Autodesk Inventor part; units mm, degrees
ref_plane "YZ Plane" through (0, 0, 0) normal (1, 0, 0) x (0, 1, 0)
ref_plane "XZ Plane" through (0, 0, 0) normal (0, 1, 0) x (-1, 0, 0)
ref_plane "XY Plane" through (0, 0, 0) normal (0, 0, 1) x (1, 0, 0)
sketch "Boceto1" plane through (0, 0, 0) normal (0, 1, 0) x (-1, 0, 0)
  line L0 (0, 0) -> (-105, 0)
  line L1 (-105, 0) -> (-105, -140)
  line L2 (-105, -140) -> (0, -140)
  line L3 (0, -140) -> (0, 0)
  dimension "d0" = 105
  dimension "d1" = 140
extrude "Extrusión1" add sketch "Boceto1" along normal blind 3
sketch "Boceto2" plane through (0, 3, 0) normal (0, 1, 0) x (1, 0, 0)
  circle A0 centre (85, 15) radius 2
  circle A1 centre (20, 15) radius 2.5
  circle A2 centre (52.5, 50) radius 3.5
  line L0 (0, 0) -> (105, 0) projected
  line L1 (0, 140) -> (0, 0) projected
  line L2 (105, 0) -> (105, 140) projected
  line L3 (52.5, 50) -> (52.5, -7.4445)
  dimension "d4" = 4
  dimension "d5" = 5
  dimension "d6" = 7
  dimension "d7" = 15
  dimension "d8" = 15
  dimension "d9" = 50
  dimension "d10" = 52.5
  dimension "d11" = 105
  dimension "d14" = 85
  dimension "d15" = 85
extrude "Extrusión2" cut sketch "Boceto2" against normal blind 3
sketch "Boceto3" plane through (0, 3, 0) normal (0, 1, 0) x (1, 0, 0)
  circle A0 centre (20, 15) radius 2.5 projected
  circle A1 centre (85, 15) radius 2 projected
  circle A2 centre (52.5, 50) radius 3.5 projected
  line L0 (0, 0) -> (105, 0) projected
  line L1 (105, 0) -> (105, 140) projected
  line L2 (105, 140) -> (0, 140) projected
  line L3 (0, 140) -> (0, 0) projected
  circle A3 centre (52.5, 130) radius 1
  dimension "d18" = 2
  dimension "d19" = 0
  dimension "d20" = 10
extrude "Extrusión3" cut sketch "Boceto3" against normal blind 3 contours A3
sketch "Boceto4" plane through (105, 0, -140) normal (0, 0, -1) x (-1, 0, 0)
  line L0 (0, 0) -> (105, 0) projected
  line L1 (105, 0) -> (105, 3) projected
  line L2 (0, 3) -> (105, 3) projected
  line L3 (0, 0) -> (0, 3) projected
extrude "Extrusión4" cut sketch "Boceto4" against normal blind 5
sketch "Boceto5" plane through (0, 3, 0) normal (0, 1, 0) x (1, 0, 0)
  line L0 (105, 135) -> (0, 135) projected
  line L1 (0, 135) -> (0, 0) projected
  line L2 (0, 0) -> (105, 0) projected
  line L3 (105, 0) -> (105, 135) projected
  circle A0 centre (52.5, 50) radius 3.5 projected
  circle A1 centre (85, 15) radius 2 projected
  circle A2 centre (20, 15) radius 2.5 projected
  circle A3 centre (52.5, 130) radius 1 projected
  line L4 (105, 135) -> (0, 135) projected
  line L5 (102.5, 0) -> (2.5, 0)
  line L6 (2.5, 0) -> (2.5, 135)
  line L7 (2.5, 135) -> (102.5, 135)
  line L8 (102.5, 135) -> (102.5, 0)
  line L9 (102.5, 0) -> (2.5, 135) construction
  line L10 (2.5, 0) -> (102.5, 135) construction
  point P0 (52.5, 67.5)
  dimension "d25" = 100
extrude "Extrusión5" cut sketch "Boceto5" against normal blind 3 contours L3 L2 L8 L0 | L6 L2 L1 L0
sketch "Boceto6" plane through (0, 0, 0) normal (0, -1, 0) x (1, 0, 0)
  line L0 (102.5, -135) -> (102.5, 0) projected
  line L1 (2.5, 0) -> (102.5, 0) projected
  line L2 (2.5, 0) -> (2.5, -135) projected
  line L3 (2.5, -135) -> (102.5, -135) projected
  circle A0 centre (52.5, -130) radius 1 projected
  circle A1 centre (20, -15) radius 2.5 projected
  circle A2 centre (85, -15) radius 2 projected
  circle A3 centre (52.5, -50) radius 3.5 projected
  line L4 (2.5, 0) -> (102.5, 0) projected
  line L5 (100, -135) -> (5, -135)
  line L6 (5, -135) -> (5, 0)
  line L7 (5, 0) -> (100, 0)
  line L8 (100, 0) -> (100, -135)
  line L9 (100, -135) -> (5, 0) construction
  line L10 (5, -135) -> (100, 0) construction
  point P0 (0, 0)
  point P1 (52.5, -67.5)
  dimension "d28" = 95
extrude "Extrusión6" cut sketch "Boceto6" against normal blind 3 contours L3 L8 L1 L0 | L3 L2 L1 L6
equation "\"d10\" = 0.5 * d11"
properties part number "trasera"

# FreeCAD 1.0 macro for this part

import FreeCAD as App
import Part
import Sketcher

V = App.Vector
Q = App.Units.Quantity


def add_polygon(sketch, points):
    """Adds a closed chain of lines whose ends are joined by coincident constraints."""
    first, n = sketch.GeometryCount, len(points)
    for a, b in zip(points, points[1:] + points[:1]):
        sketch.addGeometry(Part.LineSegment(App.Vector(*a, 0), App.Vector(*b, 0)), False)
    for i in range(n):
        sketch.addConstraint(Sketcher.Constraint("Coincident", first + i, 2, first + (i + 1) % n, 1))

doc = App.newDocument("Part")
params = doc.addObject("Spreadsheet::Sheet", "Params")
for row, (alias, value) in enumerate([
    ("sketch1_width", "105 mm"),
    ("sketch1_height", "140 mm"),
    ("pad1_length", "3 mm"),
    ("sketch2_diameter", "4 mm"),
    ("sketch2_diameter2", "5 mm"),
    ("sketch2_diameter3", "7 mm"),
    ("pocket1_length", "3 mm"),
    ("sketch3_diameter", "2 mm"),
    ("pocket2_length", "3 mm"),
    ("sketch4_width", "105 mm"),
    ("sketch4_height", "3 mm"),
    ("pocket3_length", "5 mm"),
    ("sketch5_height", "135 mm"),
    ("sketch5_width", "2.5 mm"),
    ("pocket4_length", "3 mm"),
    ("sketch6_height", "135 mm"),
    ("sketch6_width", "2.5 mm"),
    ("pocket5_length", "3 mm"),
], start=1):
    params.set(f"A{row}", alias)
    params.set(f"B{row}", "=" + value)
    params.setAlias(f"B{row}", alias)

body = doc.addObject("PartDesign::Body", "Body")

# Sketch on XZ plane
sketch1 = body.newObject("Sketcher::SketchObject", "Sketch")
sketch1.AttachmentSupport = (doc.getObject("XZ_Plane"), [""])
sketch1.MapMode = "FlatFace"
add_polygon(sketch1, [(0, -140), (0, 0), (105, 0), (105, -140)])  # lines 0-3
sketch1.addConstraint([
    Sketcher.Constraint("Vertical", 0),
    Sketcher.Constraint("Horizontal", 1),
    Sketcher.Constraint("Vertical", 2),
    Sketcher.Constraint("Horizontal", 3),
    Sketcher.Constraint("Coincident", 0, 2, -1, 1),
    Sketcher.Constraint("DistanceX", 1, 1, 1, 2, Q("105 mm")),
    Sketcher.Constraint("DistanceY", 0, 1, 0, 2, Q("140 mm")),
])
sketch1.setExpression("Constraints[9]", "Params.sketch1_width")
sketch1.setExpression("Constraints[10]", "Params.sketch1_height")
pad1 = body.newObject("PartDesign::Pad", "Pad")
pad1.Profile = sketch1
pad1.setExpression("Length", "Params.pad1_length")
pad1.Reversed = True

# Sketch on XZ plane
sketch2 = body.newObject("Sketcher::SketchObject", "Sketch001")
sketch2.AttachmentSupport = (doc.getObject("XZ_Plane"), [""])
sketch2.MapMode = "FlatFace"
sketch2.AttachmentOffset = App.Placement(V(0, 0, -3), App.Rotation())
sketch2.addGeometry([
    Part.Circle(V(85, -15, 0), V(0, 0, 1), 2),
    Part.Circle(V(20, -15, 0), V(0, 0, 1), 2.5),
    Part.Circle(V(52.5, -50, 0), V(0, 0, 1), 3.5),
], False)
sketch2.addConstraint([
    Sketcher.Constraint("Horizontal", 0, 3, 1, 3),
    Sketcher.Constraint("Diameter", 0, Q("4 mm")),
    Sketcher.Constraint("Diameter", 1, Q("5 mm")),
    Sketcher.Constraint("Diameter", 2, Q("7 mm")),
    Sketcher.Constraint("DistanceX", -1, 1, 0, 3, Q("85 mm")),
    Sketcher.Constraint("DistanceY", 0, 3, -1, 1, Q("15 mm")),
    Sketcher.Constraint("DistanceY", 2, 3, -1, 1, Q("50 mm")),
    Sketcher.Constraint("DistanceX", -1, 1, 2, 3, Q("52.5 mm")),
    Sketcher.Constraint("DistanceX", -1, 1, 1, 3, Q("20 mm")),
])
sketch2.setExpression("Constraints[1]", "Params.sketch2_diameter")
sketch2.setExpression("Constraints[2]", "Params.sketch2_diameter2")
sketch2.setExpression("Constraints[3]", "Params.sketch2_diameter3")
pocket1 = body.newObject("PartDesign::Pocket", "Pocket")
pocket1.Profile = sketch2
pocket1.setExpression("Length", "Params.pocket1_length")
pocket1.Reversed = True

# Sketch on XZ plane
sketch3 = body.newObject("Sketcher::SketchObject", "Sketch002")
sketch3.AttachmentSupport = (doc.getObject("XZ_Plane"), [""])
sketch3.MapMode = "FlatFace"
sketch3.AttachmentOffset = App.Placement(V(0, 0, -3), App.Rotation())
sketch3.addGeometry(Part.Circle(V(52.5, -130, 0), V(0, 0, 1), 1), False)
sketch3.addConstraint([
    Sketcher.Constraint("Diameter", 0, Q("2 mm")),
    Sketcher.Constraint("DistanceY", 0, 3, -1, 1, Q("130 mm")),
    Sketcher.Constraint("DistanceX", -1, 1, 0, 3, Q("52.5 mm")),
])
sketch3.setExpression("Constraints[0]", "Params.sketch3_diameter")
pocket2 = body.newObject("PartDesign::Pocket", "Pocket001")
pocket2.Profile = sketch3
pocket2.setExpression("Length", "Params.pocket2_length")
pocket2.Reversed = True

# Sketch on XY plane
sketch4 = body.newObject("Sketcher::SketchObject", "Sketch003")
sketch4.AttachmentSupport = (doc.getObject("XY_Plane"), [""])
sketch4.MapMode = "FlatFace"
sketch4.AttachmentOffset = App.Placement(V(0, 0, -140), App.Rotation())
add_polygon(sketch4, [(105, 3), (105, 0), (0, 0), (0, 3)])  # lines 0-3
sketch4.addConstraint([
    Sketcher.Constraint("Vertical", 0),
    Sketcher.Constraint("Horizontal", 1),
    Sketcher.Constraint("Vertical", 2),
    Sketcher.Constraint("Horizontal", 3),
    Sketcher.Constraint("Coincident", 1, 2, -1, 1),
    Sketcher.Constraint("DistanceX", 1, 2, 1, 1, Q("105 mm")),
    Sketcher.Constraint("DistanceY", 0, 2, 0, 1, Q("3 mm")),
])
sketch4.setExpression("Constraints[9]", "Params.sketch4_width")
sketch4.setExpression("Constraints[10]", "Params.sketch4_height")
pocket3 = body.newObject("PartDesign::Pocket", "Pocket002")
pocket3.Profile = sketch4
pocket3.setExpression("Length", "Params.pocket3_length")
pocket3.Reversed = True

# Sketch on XZ plane
sketch5 = body.newObject("Sketcher::SketchObject", "Sketch004")
sketch5.AttachmentSupport = (doc.getObject("XZ_Plane"), [""])
sketch5.MapMode = "FlatFace"
sketch5.AttachmentOffset = App.Placement(V(0, 0, -3), App.Rotation())
add_polygon(sketch5, [(105, 0), (105, -135), (102.5, -135), (102.5, 0)])  # lines 0-3
add_polygon(sketch5, [(2.5, 0), (2.5, -135), (0, -135), (0, 0)])  # lines 4-7
sketch5.addConstraint([
    Sketcher.Constraint("Vertical", 0),
    Sketcher.Constraint("Horizontal", 1),
    Sketcher.Constraint("Vertical", 2),
    Sketcher.Constraint("Horizontal", 3),
    Sketcher.Constraint("Vertical", 4),
    Sketcher.Constraint("Horizontal", 5),
    Sketcher.Constraint("Vertical", 6),
    Sketcher.Constraint("Horizontal", 7),
    Sketcher.Constraint("Coincident", 6, 2, -1, 1),
    Sketcher.Constraint("PointOnObject", 2, 2, -1),
    Sketcher.Constraint("Horizontal", 1, 2, 4, 2),
    Sketcher.Constraint("Equal", 3, 5),
    Sketcher.Constraint("DistanceX", 4, 2, 1, 2, Q("100 mm")),
    Sketcher.Constraint("DistanceY", 0, 2, 0, 1, Q("135 mm")),
    Sketcher.Constraint("DistanceX", 1, 2, 1, 1, Q("2.5 mm")),
])
sketch5.setExpression("Constraints[21]", "Params.sketch5_height")
sketch5.setExpression("Constraints[22]", "Params.sketch5_width")
pocket4 = body.newObject("PartDesign::Pocket", "Pocket003")
pocket4.Profile = sketch5
pocket4.setExpression("Length", "Params.pocket4_length")
pocket4.Reversed = True

# Sketch on XZ plane
sketch6 = body.newObject("Sketcher::SketchObject", "Sketch005")
sketch6.AttachmentSupport = (doc.getObject("XZ_Plane"), [""])
sketch6.MapMode = "FlatFace"
add_polygon(sketch6, [(100, -135), (102.5, -135), (102.5, 0), (100, 0)])  # lines 0-3
add_polygon(sketch6, [(2.5, -135), (5, -135), (5, 0), (2.5, 0)])  # lines 4-7
sketch6.addConstraint([
    Sketcher.Constraint("Horizontal", 0),
    Sketcher.Constraint("Vertical", 1),
    Sketcher.Constraint("Horizontal", 2),
    Sketcher.Constraint("Vertical", 3),
    Sketcher.Constraint("Horizontal", 4),
    Sketcher.Constraint("Vertical", 5),
    Sketcher.Constraint("Horizontal", 6),
    Sketcher.Constraint("Vertical", 7),
    Sketcher.Constraint("PointOnObject", 1, 2, -1),
    Sketcher.Constraint("PointOnObject", 5, 2, -1),
    Sketcher.Constraint("Horizontal", 3, 2, 4, 2),
    Sketcher.Constraint("Equal", 2, 4),
    Sketcher.Constraint("DistanceX", 4, 2, 3, 2, Q("95 mm")),
    Sketcher.Constraint("DistanceY", 1, 1, 1, 2, Q("135 mm")),
    Sketcher.Constraint("DistanceX", 0, 1, 0, 2, Q("2.5 mm")),
    Sketcher.Constraint("DistanceX", -1, 1, 2, 2, Q("100 mm")),
])
sketch6.setExpression("Constraints[21]", "Params.sketch6_height")
sketch6.setExpression("Constraints[22]", "Params.sketch6_width")
pocket5 = body.newObject("PartDesign::Pocket", "Pocket004")
pocket5.Profile = sketch6
pocket5.setExpression("Length", "Params.pocket5_length")

doc.recompute()
